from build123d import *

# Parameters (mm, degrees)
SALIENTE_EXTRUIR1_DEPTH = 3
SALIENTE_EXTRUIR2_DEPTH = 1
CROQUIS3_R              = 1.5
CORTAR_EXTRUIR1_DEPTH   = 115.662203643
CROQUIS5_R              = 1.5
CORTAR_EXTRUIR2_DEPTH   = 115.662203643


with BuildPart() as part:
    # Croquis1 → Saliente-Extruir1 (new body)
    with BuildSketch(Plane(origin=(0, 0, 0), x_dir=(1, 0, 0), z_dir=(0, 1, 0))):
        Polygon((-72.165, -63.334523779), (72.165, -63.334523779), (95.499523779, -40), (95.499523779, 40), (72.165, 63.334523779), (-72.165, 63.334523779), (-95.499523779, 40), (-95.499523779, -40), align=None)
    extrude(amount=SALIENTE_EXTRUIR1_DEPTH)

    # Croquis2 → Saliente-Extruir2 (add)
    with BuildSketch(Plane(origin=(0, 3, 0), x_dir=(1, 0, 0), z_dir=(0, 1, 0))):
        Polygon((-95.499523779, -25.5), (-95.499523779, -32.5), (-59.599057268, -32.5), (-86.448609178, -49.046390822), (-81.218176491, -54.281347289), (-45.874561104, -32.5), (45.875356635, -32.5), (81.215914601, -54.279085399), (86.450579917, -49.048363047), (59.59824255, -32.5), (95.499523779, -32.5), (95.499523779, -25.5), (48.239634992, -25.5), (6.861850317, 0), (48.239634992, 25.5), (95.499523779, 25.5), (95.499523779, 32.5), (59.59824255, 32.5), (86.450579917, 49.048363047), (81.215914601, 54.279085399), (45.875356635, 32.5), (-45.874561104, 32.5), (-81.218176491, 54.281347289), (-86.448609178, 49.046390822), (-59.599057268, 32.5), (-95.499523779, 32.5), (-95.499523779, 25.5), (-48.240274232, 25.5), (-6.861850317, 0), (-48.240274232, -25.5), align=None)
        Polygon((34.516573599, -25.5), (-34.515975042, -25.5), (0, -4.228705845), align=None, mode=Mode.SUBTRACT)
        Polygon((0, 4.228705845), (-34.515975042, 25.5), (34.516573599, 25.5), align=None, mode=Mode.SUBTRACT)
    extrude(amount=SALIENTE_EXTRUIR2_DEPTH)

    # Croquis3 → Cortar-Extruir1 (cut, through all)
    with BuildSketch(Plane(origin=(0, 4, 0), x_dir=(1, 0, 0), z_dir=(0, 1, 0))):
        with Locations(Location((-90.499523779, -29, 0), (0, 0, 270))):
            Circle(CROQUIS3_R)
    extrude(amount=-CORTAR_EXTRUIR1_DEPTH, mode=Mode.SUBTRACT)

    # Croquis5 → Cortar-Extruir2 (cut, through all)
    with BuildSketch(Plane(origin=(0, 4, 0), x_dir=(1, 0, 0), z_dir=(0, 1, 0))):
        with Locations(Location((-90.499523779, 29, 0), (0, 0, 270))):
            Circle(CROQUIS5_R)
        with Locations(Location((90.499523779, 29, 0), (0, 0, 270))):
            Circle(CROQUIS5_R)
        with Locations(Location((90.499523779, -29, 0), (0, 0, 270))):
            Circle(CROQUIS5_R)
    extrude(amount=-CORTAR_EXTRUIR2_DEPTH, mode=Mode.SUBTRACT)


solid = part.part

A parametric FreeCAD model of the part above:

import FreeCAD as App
import Part
import Sketcher
from FreeCAD import Vector
Q = App.Units.Quantity


def add_polygon(sketch, points):
    """Adds a closed chain of lines whose ends are joined by coincident constraints."""
    first, n = sketch.GeometryCount, len(points)
    for a, b in zip(points, points[1:] + points[:1]):
        sketch.addGeometry(Part.LineSegment(App.Vector(*a, 0), App.Vector(*b, 0)), False)
    for i in range(n):
        sketch.addConstraint(Sketcher.Constraint("Coincident", first + i, 2, first + (i + 1) % n, 1))

doc = App.newDocument("Part")
body = doc.addObject("PartDesign::Body", "Body")

# Sketch on XZ plane
sketch1 = body.newObject("Sketcher::SketchObject", "Sketch")
sketch1.AttachmentSupport = (doc.getObject("XZ_Plane"), [""])
sketch1.MapMode = "FlatFace"
add_polygon(sketch1, [(-72.165, 63.334524), (72.165, 63.334524), (95.499524, 40), (95.499524, -40), (72.165, -63.334524), (-72.165, -63.334524), (-95.499524, -40), (-95.499524, 40)])  # lines 0-7
sketch1.addConstraint([
    Sketcher.Constraint("Horizontal", 0),
    Sketcher.Constraint("Vertical", 2),
    Sketcher.Constraint("Horizontal", 4),
    Sketcher.Constraint("Vertical", 6),
    Sketcher.Constraint("Symmetric", 0, 2, 4, 2, -1, 1),
    Sketcher.Constraint("Symmetric", 1, 2, 5, 2, -1, 1),
    Sketcher.Constraint("Perpendicular", 1, 3),
    Sketcher.Constraint("Perpendicular", 5, 7),
    Sketcher.Constraint("Horizontal", 2, 2, 5, 2),
    Sketcher.Constraint("Horizontal", 1, 2, 6, 2),
    Sketcher.Constraint("Vertical", 0, 2, 3, 2),
    Sketcher.Constraint("DistanceY", 2, 2, 2, 1, Q("80 mm")),
    Sketcher.Constraint("Distance", 1, Q("33 mm")),
    Sketcher.Constraint("DistanceX", 0, 1, 0, 2, Q("144.33 mm")),
])
pad1 = body.newObject("PartDesign::Pad", "Pad")
pad1.Profile = sketch1
pad1.Length = 3
pad1.Reversed = True

# Sketch on XZ plane
sketch2 = body.newObject("Sketcher::SketchObject", "Sketch001")
sketch2.AttachmentSupport = (doc.getObject("XZ_Plane"), [""])
sketch2.MapMode = "FlatFace"
sketch2.AttachmentOffset = App.Placement(Vector(0, 0, -3), App.Rotation())
add_polygon(sketch2, [(-95.499524, 25.5), (-95.499524, 32.5), (-59.599057, 32.5), (-86.448609, 49.046391), (-81.218176, 54.281347), (-45.874561, 32.5), (45.875357, 32.5), (81.215915, 54.279085), (86.45058, 49.048363), (59.598243, 32.5), (95.499524, 32.5), (95.499524, 25.5), (48.239635, 25.5), (6.86185, 0), (48.239635, -25.5), (95.499524, -25.5), (95.499524, -32.5), (59.598243, -32.5), (86.45058, -49.048363), (81.215915, -54.279085), (45.875357, -32.5), (-45.874561, -32.5), (-81.218176, -54.281347), (-86.448609, -49.046391), (-59.599057, -32.5), (-95.499524, -32.5), (-95.499524, -25.5), (-48.240274, -25.5), (-6.86185, 0), (-48.240274, 25.5)])  # lines 0-29
add_polygon(sketch2, [(0, 4.228706), (34.516574, 25.5), (-34.515975, 25.5)])  # lines 30-32
add_polygon(sketch2, [(34.516574, -25.5), (0, -4.228706), (-34.515975, -25.5)])  # lines 33-35
sketch2.addConstraint([
    Sketcher.Constraint("Vertical", 0),
    Sketcher.Constraint("Horizontal", 1),
    Sketcher.Constraint("Horizontal", 5),
    Sketcher.Constraint("Horizontal", 9),
    Sketcher.Constraint("Vertical", 10),
    Sketcher.Constraint("Horizontal", 11),
    Sketcher.Constraint("Horizontal", 14),
    Sketcher.Constraint("Vertical", 15),
    Sketcher.Constraint("Horizontal", 16),
    Sketcher.Constraint("Horizontal", 20),
    Sketcher.Constraint("Horizontal", 24),
    Sketcher.Constraint("Vertical", 25),
    Sketcher.Constraint("Horizontal", 26),
    Sketcher.Constraint("Horizontal", 29),
    Sketcher.Constraint("Horizontal", 31),
    Sketcher.Constraint("Horizontal", 35),
    Sketcher.Constraint("PointOnObject", 12, 2, -1),
    Sketcher.Constraint("PointOnObject", 27, 2, -1),
    Sketcher.Constraint("PointOnObject", 32, 2, -2),
    Sketcher.Constraint("PointOnObject", 33, 2, -2),
    Sketcher.Constraint("DistanceY", 0, 1, 0, 2, Q("7 mm")),
    Sketcher.Constraint("DistanceY", 10, 2, 10, 1, Q("7 mm")),
    Sketcher.Constraint("DistanceY", 15, 2, 15, 1, Q("7 mm")),
    Sketcher.Constraint("DistanceY", 25, 1, 25, 2, Q("7 mm")),
    Sketcher.Constraint("DistanceY", 10, 2, 5, 2, Q("7 mm")),
    Sketcher.Constraint("DistanceY", 13, 2, 11, 2, Q("51 mm")),
    Sketcher.Constraint("DistanceY", 19, 2, 13, 2, Q("7 mm")),
    Sketcher.Constraint("DistanceY", 20, 2, 1, 2, Q("65 mm")),
    Sketcher.Constraint("DistanceY", 23, 2, 1, 2, Q("65 mm")),
    Sketcher.Constraint("DistanceY", 30, 2, 5, 2, Q("7 mm")),
    Sketcher.Constraint("DistanceY", 20, 2, 34, 2, Q("7 mm")),
    Sketcher.Constraint("DistanceY", -1, 1, 0, 2, Q("32.5 mm")),
    Sketcher.Constraint("DistanceX", 9, 1, 9, 2, Q("35.901281 mm")),
    Sketcher.Constraint("DistanceX", 11, 2, 11, 1, Q("47.259889 mm")),
    Sketcher.Constraint("DistanceX", 14, 1, 14, 2, Q("47.259889 mm")),
    Sketcher.Constraint("DistanceX", 16, 2, 16, 1, Q("35.901281 mm")),
    Sketcher.Constraint("DistanceX", 26, 1, 26, 2, Q("47.25925 mm")),
    Sketcher.Constraint("DistanceX", 29, 2, 29, 1, Q("47.25925 mm")),
    Sketcher.Constraint("DistanceX", 31, 2, 31, 1, Q("69.032549 mm")),
    Sketcher.Constraint("DistanceX", 35, 1, 35, 2, Q("69.032549 mm")),
    Sketcher.Constraint("DistanceX", 1, 2, 8, 2, Q("119.1973 mm")),
    Sketcher.Constraint("DistanceX", 27, 2, 12, 2, Q("13.723701 mm")),
    Sketcher.Constraint("DistanceX", 28, 2, 31, 2, Q("13.724299 mm")),
    Sketcher.Constraint("DistanceX", 26, 2, 34, 2, Q("13.724299 mm")),
    Sketcher.Constraint("Distance", 2, Q("31.538571 mm")),
    Sketcher.Constraint("Distance", 3, Q("7.400148 mm")),
    Sketcher.Constraint("Distance", 4, Q("41.516241 mm")),
    Sketcher.Constraint("Distance", 6, Q("41.512451 mm")),
    Sketcher.Constraint("Distance", 12, Q("48.604229 mm")),
    Sketcher.Constraint("Distance", 13, Q("48.604229 mm")),
    Sketcher.Constraint("Distance", 19, Q("41.512451 mm")),
    Sketcher.Constraint("Distance", 21, Q("41.516241 mm")),
    Sketcher.Constraint("Distance", 22, Q("7.400148 mm")),
    Sketcher.Constraint("Distance", 23, Q("31.538571 mm")),
    Sketcher.Constraint("DistanceX", 1, 1, 1, 2, Q("35.900467 mm")),
    Sketcher.Constraint("DistanceX", 5, 1, 5, 2, Q("91.749918 mm")),
    Sketcher.Constraint("DistanceX", 20, 2, 20, 1, Q("91.749918 mm")),
    Sketcher.Constraint("DistanceX", 24, 2, 24, 1, Q("35.900467 mm")),
    Sketcher.Constraint("DistanceX", 2, 2, -1, 1, Q("86.448609 mm")),
    Sketcher.Constraint("DistanceY", -1, 1, 2, 2, Q("49.046391 mm")),
    Sketcher.Constraint("DistanceX", 4, 2, -1, 1, Q("45.874561 mm")),
    Sketcher.Constraint("DistanceX", -1, 1, 7, 2, Q("86.45058 mm")),
    Sketcher.Constraint("DistanceX", -1, 1, 17, 2, Q("86.45058 mm")),
    Sketcher.Constraint("DistanceX", 20, 2, -1, 1, Q("45.874561 mm")),
    Sketcher.Constraint("DistanceX", 22, 2, -1, 1, Q("86.448609 mm")),
    Sketcher.Constraint("DistanceY", 22, 2, -1, 1, Q("49.046391 mm")),
    Sketcher.Constraint("DistanceX", 1, 2, 6, 2, Q("140.814972 mm")),
    Sketcher.Constraint("DistanceX", 18, 2, 15, 2, Q("14.283609 mm")),
    Sketcher.Constraint("DistanceY", 33, 2, 32, 2, Q("8.457412 mm")),
    Sketcher.Constraint("Distance", 7, Q("7.400147 mm")),
    Sketcher.Constraint("Distance", 17, Q("31.541977 mm")),
    Sketcher.Constraint("Distance", 30, Q("40.544566 mm")),
])
pad2 = body.newObject("PartDesign::Pad", "Pad001")
pad2.Profile = sketch2
pad2.Length = 1
pad2.Reversed = True

# Sketch on XZ plane
sketch3 = body.newObject("Sketcher::SketchObject", "Sketch002")
sketch3.AttachmentSupport = (doc.getObject("XZ_Plane"), [""])
sketch3.MapMode = "FlatFace"
sketch3.AttachmentOffset = App.Placement(Vector(0, 0, -4), App.Rotation())
sketch3.addGeometry(Part.Circle(Vector(-90.499524, 29, 0), Vector(0, 0, 1), 1.5), False)
sketch3.addConstraint([
    Sketcher.Constraint("Diameter", 0, Q("3 mm")),
    Sketcher.Constraint("DistanceY", -1, 1, 0, 3, Q("29 mm")),
    Sketcher.Constraint("DistanceX", 0, 3, -1, 1, Q("90.499524 mm")),
])
pocket1 = body.newObject("PartDesign::Pocket", "Pocket")
pocket1.Profile = sketch3
pocket1.Type = "ThroughAll"
pocket1.Reversed = True

# Sketch on XZ plane
sketch4 = body.newObject("Sketcher::SketchObject", "Sketch003")
sketch4.AttachmentSupport = (doc.getObject("XZ_Plane"), [""])
sketch4.MapMode = "FlatFace"
sketch4.AttachmentOffset = App.Placement(Vector(0, 0, -4), App.Rotation())
sketch4.addGeometry([
    Part.Circle(Vector(-90.499524, -29, 0), Vector(0, 0, 1), 1.5),
    Part.Circle(Vector(90.499524, -29, 0), Vector(0, 0, 1), 1.5),
    Part.Circle(Vector(90.499524, 29, 0), Vector(0, 0, 1), 1.5),
], False)
sketch4.addConstraint([
    Sketcher.Constraint("Equal", 0, 1),
    Sketcher.Constraint("Equal", 1, 2),
    Sketcher.Constraint("Symmetric", 0, 3, 2, 3, -1, 1),
    Sketcher.Constraint("Symmetric", 0, 3, 1, 3, -2),
    Sketcher.Constraint("Diameter", 0, Q("3 mm")),
    Sketcher.Constraint("DistanceY", 0, 3, -1, 1, Q("29 mm")),
    Sketcher.Constraint("DistanceX", 0, 3, -1, 1, Q("90.499524 mm")),
])
pocket2 = body.newObject("PartDesign::Pocket", "Pocket001")
pocket2.Profile = sketch4
pocket2.Type = "ThroughAll"
pocket2.Reversed = True

doc.recompute()
